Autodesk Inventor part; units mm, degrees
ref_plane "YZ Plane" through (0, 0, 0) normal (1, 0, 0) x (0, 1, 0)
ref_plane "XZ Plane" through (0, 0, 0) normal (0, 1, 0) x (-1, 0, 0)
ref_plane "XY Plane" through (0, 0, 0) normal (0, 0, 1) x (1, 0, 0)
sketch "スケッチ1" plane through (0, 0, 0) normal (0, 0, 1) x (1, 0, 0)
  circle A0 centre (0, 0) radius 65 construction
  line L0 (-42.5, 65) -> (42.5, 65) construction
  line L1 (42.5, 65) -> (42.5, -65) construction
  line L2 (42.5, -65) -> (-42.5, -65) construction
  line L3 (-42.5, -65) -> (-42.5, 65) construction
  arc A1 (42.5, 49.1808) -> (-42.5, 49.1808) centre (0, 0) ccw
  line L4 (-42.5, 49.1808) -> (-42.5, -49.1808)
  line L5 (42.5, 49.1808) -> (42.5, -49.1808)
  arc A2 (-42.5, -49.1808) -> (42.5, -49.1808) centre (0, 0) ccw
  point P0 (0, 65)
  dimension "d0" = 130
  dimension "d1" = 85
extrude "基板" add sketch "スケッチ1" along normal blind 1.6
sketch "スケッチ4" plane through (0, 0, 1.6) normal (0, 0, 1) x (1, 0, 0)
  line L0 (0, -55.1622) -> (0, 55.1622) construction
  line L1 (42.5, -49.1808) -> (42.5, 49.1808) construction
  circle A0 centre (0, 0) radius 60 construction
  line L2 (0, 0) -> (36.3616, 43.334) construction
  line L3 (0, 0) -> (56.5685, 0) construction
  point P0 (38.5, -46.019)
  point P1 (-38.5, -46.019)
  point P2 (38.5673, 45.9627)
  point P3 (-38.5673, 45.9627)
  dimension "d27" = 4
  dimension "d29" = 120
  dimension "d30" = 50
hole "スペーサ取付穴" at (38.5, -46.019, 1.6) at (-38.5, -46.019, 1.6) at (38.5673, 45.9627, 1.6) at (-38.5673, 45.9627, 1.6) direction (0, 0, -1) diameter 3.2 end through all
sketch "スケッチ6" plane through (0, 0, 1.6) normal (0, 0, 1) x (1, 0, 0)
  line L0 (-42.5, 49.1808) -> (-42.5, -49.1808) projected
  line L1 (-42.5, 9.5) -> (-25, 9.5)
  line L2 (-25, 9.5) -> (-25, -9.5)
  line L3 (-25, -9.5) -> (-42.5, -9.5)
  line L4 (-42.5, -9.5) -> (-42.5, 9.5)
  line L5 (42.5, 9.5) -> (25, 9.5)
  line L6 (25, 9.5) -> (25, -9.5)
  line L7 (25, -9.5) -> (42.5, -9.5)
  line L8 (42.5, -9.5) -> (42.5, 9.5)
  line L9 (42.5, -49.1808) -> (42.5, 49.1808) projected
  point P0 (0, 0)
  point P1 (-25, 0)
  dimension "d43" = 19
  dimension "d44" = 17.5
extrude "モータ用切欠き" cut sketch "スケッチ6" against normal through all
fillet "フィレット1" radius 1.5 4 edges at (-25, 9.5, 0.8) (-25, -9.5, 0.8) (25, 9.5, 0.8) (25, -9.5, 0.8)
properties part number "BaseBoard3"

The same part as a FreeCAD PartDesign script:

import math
import FreeCAD as App
import Part
import Sketcher
Q = App.Units.Quantity


def edges_at(feature, points):
    """Names of the edges that pass closest to the given points."""
    edges = feature.Shape.Edges
    near = lambda p: min(range(len(edges)), key=lambda i: edges[i].distToShape(Part.Vertex(*p))[0])
    return sorted({f"Edge{near(p) + 1}" for p in points})

doc = App.newDocument("Part")
body = doc.addObject("PartDesign::Body", "Body")

# Sketch on XY plane
sketch1 = doc.addObject("Sketcher::SketchObject", "Sketch")
body.addObject(sketch1)
sketch1.AttachmentSupport = (doc.XY_Plane, [""])
sketch1.MapMode = "FlatFace"
sketch1.addGeometry(Part.LineSegment(App.Vector(42, -49, 0), App.Vector(42, 49, 0)), False)
sketch1.addGeometry(Part.ArcOfCircle(Part.Circle(App.Vector(0, 0, 0), App.Vector(0, 0, 1), 65), math.radians(49), math.radians(131)), False)
sketch1.addGeometry(Part.LineSegment(App.Vector(-42, 49, 0), App.Vector(-42, -49, 0)), False)
sketch1.addGeometry(Part.ArcOfCircle(Part.Circle(App.Vector(0, 0, 0), App.Vector(0, 0, 1), 65), math.radians(-131), math.radians(-49)), False)
sketch1.addConstraint(Sketcher.Constraint("Coincident", 0, 2, 1, 1))
sketch1.addConstraint(Sketcher.Constraint("Coincident", 1, 2, 2, 1))
sketch1.addConstraint(Sketcher.Constraint("Coincident", 2, 2, 3, 1))
sketch1.addConstraint(Sketcher.Constraint("Coincident", 3, 2, 0, 1))
sketch1.addConstraint(Sketcher.Constraint("Vertical", 0))
sketch1.addConstraint(Sketcher.Constraint("Vertical", 2))
sketch1.addConstraint(Sketcher.Constraint("Coincident", 1, 3, -1, 1))
sketch1.addConstraint(Sketcher.Constraint("Coincident", 3, 3, -1, 1))
sketch1.addConstraint(Sketcher.Constraint("Equal", 1, 3))
sketch1.addConstraint(Sketcher.Constraint("Horizontal", 0, 2, 1, 2))
sketch1.addConstraint(Sketcher.Constraint("Radius", 1, Q("65 mm")))
sketch1.addConstraint(Sketcher.Constraint("DistanceX", 1, 2, 0, 2, Q("85 mm")))
pad1 = doc.addObject("PartDesign::Pad", "Pad")
body.addObject(pad1)
pad1.Profile = sketch1
pad1.Length = 1.6

# Sketch on XY plane
sketch2 = doc.addObject("Sketcher::SketchObject", "Sketch001")
body.addObject(sketch2)
sketch2.AttachmentSupport = (doc.XY_Plane, [""])
sketch2.MapMode = "FlatFace"
sketch2.AttachmentOffset = App.Placement(App.Vector(0, 0, 1.6), App.Rotation())
sketch2.addGeometry(Part.Circle(App.Vector(38.5, -46, 0), App.Vector(0, 0, 1), 1.6), False)
sketch2.addGeometry(Part.Circle(App.Vector(-38.5, -46, 0), App.Vector(0, 0, 1), 1.6), False)
sketch2.addGeometry(Part.Circle(App.Vector(38.6, 46, 0), App.Vector(0, 0, 1), 1.6), False)
sketch2.addGeometry(Part.Circle(App.Vector(-38.6, 46, 0), App.Vector(0, 0, 1), 1.6), False)
sketch2.addConstraint(Sketcher.Constraint("Equal", 0, 1))
sketch2.addConstraint(Sketcher.Constraint("Equal", 1, 2))
sketch2.addConstraint(Sketcher.Constraint("Equal", 2, 3))
sketch2.addConstraint(Sketcher.Constraint("Symmetric", 0, 3, 1, 3, -2))
sketch2.addConstraint(Sketcher.Constraint("Symmetric", 2, 3, 3, 3, -2))
sketch2.addConstraint(Sketcher.Constraint("Diameter", 0, Q("3.2 mm")))
sketch2.addConstraint(Sketcher.Constraint("DistanceX", 1, 3, 0, 3, Q("77 mm")))
sketch2.addConstraint(Sketcher.Constraint("DistanceY", 0, 3, -1, 1, Q("46.019 mm")))
sketch2.addConstraint(Sketcher.Constraint("DistanceX", -1, 1, 2, 3, Q("38.5673 mm")))
sketch2.addConstraint(Sketcher.Constraint("DistanceY", -1, 1, 2, 3, Q("45.9627 mm")))
doc.recompute()
hole = doc.addObject("PartDesign::Hole", "Hole")
body.addObject(hole)
hole.Profile = sketch2
hole.ThreadType = "None"
hole.Diameter = 3.2
hole.DepthType = "ThroughAll"

# Sketch on XY plane
sketch3 = doc.addObject("Sketcher::SketchObject", "Sketch002")
body.addObject(sketch3)
sketch3.AttachmentSupport = (doc.XY_Plane, [""])
sketch3.MapMode = "FlatFace"
sketch3.AttachmentOffset = App.Placement(App.Vector(0, 0, 1.6), App.Rotation())
sketch3.addGeometry(Part.LineSegment(App.Vector(-25, 10, 0), App.Vector(-42, 10, 0)), False)
sketch3.addGeometry(Part.LineSegment(App.Vector(-42, 10, 0), App.Vector(-42, -10, 0)), False)
sketch3.addGeometry(Part.LineSegment(App.Vector(-42, -10, 0), App.Vector(-25, -10, 0)), False)
sketch3.addGeometry(Part.LineSegment(App.Vector(-25, -10, 0), App.Vector(-25, 10, 0)), False)
sketch3.addGeometry(Part.LineSegment(App.Vector(42, -10, 0), App.Vector(42, 10, 0)), False)
sketch3.addGeometry(Part.LineSegment(App.Vector(42, 10, 0), App.Vector(25, 10, 0)), False)
sketch3.addGeometry(Part.LineSegment(App.Vector(25, 10, 0), App.Vector(25, -10, 0)), False)
sketch3.addGeometry(Part.LineSegment(App.Vector(25, -10, 0), App.Vector(42, -10, 0)), False)
sketch3.addConstraint(Sketcher.Constraint("Coincident", 0, 2, 1, 1))
sketch3.addConstraint(Sketcher.Constraint("Coincident", 1, 2, 2, 1))
sketch3.addConstraint(Sketcher.Constraint("Coincident", 2, 2, 3, 1))
sketch3.addConstraint(Sketcher.Constraint("Coincident", 3, 2, 0, 1))
sketch3.addConstraint(Sketcher.Constraint("Coincident", 4, 2, 5, 1))
sketch3.addConstraint(Sketcher.Constraint("Coincident", 5, 2, 6, 1))
sketch3.addConstraint(Sketcher.Constraint("Coincident", 6, 2, 7, 1))
sketch3.addConstraint(Sketcher.Constraint("Coincident", 7, 2, 4, 1))
sketch3.addConstraint(Sketcher.Constraint("Horizontal", 0))
sketch3.addConstraint(Sketcher.Constraint("Vertical", 1))
sketch3.addConstraint(Sketcher.Constraint("Horizontal", 2))
sketch3.addConstraint(Sketcher.Constraint("Vertical", 3))
sketch3.addConstraint(Sketcher.Constraint("Vertical", 4))
sketch3.addConstraint(Sketcher.Constraint("Horizontal", 5))
sketch3.addConstraint(Sketcher.Constraint("Vertical", 6))
sketch3.addConstraint(Sketcher.Constraint("Horizontal", 7))
sketch3.addConstraint(Sketcher.Constraint("Symmetric", 1, 2, 4, 2, -1, 1))
sketch3.addConstraint(Sketcher.Constraint("Symmetric", 3, 2, 6, 2, -1, 1))
sketch3.addConstraint(Sketcher.Constraint("Horizontal", 3, 2, 4, 2))
sketch3.addConstraint(Sketcher.Constraint("DistanceY", 1, 2, 1, 1, Q("19 mm")))
sketch3.addConstraint(Sketcher.Constraint("DistanceX", 0, 2, 0, 1, Q("17.5 mm")))
sketch3.addConstraint(Sketcher.Constraint("DistanceX", 2, 2, -1, 1, Q("25 mm")))
pocket1 = doc.addObject("PartDesign::Pocket", "Pocket")
body.addObject(pocket1)
pocket1.Profile = sketch3
pocket1.Type = "ThroughAll"
doc.recompute()

fillet = doc.addObject("PartDesign::Fillet", "Fillet")
body.addObject(fillet)
fillet.Base = (pocket1, edges_at(pocket1, [
    (-25, 9.5, 0.8),
    (-25, -9.5, 0.8),
    (25, 9.5, 0.8),
    (25, -9.5, 0.8),
]))
fillet.Radius = 1.5

doc.recompute()
